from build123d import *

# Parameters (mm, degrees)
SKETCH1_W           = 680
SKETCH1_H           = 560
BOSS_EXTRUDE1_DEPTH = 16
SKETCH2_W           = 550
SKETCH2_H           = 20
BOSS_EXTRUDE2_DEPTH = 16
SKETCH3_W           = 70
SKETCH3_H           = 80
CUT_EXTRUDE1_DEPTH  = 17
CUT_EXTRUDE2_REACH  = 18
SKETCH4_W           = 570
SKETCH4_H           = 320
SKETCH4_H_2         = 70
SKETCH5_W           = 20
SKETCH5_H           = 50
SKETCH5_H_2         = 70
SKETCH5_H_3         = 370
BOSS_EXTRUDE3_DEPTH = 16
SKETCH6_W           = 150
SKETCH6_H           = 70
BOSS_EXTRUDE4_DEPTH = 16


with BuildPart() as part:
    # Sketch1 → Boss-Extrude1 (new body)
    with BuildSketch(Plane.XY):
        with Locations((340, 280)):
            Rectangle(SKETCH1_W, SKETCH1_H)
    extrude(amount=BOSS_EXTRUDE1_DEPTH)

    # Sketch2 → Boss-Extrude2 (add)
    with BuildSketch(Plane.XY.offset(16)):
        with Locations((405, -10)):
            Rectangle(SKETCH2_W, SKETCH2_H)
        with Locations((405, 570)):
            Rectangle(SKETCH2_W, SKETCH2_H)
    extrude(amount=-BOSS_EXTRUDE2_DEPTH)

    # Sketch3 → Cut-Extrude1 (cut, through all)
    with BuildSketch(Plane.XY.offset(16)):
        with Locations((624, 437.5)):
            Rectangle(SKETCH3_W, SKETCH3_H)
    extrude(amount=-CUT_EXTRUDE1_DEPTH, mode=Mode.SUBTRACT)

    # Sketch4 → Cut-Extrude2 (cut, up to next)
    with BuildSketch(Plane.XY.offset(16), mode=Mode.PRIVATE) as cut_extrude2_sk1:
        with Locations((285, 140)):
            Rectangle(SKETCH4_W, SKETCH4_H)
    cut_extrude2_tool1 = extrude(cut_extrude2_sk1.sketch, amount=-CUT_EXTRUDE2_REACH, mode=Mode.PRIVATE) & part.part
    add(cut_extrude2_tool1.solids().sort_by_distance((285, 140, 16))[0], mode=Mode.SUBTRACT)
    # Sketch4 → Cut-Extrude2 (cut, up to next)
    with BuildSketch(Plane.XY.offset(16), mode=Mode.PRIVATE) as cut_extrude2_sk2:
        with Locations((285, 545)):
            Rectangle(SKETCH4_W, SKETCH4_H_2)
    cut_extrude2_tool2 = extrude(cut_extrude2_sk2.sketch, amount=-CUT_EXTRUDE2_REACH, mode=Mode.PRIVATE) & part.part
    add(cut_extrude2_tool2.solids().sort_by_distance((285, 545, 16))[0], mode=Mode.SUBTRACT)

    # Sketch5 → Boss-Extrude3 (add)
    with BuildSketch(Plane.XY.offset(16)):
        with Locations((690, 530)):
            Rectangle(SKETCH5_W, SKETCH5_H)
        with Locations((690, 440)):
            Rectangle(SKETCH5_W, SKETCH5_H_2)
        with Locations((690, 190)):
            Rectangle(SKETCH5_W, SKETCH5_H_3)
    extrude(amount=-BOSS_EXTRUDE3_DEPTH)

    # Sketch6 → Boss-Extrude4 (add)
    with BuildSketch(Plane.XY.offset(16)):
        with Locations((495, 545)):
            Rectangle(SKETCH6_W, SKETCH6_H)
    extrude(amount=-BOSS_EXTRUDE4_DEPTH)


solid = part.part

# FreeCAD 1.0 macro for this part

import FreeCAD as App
import Part
import Sketcher

V = App.Vector
Q = App.Units.Quantity


def add_polygon(sketch, points):
    """Adds a closed chain of lines whose ends are joined by coincident constraints."""
    first, n = sketch.GeometryCount, len(points)
    for a, b in zip(points, points[1:] + points[:1]):
        sketch.addGeometry(Part.LineSegment(App.Vector(*a, 0), App.Vector(*b, 0)), False)
    for i in range(n):
        sketch.addConstraint(Sketcher.Constraint("Coincident", first + i, 2, first + (i + 1) % n, 1))

doc = App.newDocument("Part")
body = doc.addObject("PartDesign::Body", "Body")

# Sketch on XY plane
sketch1 = doc.addObject("Sketcher::SketchObject", "Sketch")
body.addObject(sketch1)
sketch1.AttachmentSupport = (doc.XY_Plane, [""])
sketch1.MapMode = "FlatFace"
add_polygon(sketch1, [(0, 560), (0, 0), (680, 0), (680, 560)])  # lines 0-3
sketch1.addConstraint([
    Sketcher.Constraint("Vertical", 0),
    Sketcher.Constraint("Horizontal", 1),
    Sketcher.Constraint("Vertical", 2),
    Sketcher.Constraint("Horizontal", 3),
    Sketcher.Constraint("Coincident", 0, 2, -1, 1),
    Sketcher.Constraint("DistanceX", 1, 1, 1, 2, Q("680 mm")),
    Sketcher.Constraint("DistanceY", 0, 2, 0, 1, Q("560 mm")),
])
pad1 = doc.addObject("PartDesign::Pad", "Pad")
body.addObject(pad1)
pad1.Profile = sketch1
pad1.Length = 16

# Sketch on XY plane
sketch2 = doc.addObject("Sketcher::SketchObject", "Sketch001")
body.addObject(sketch2)
sketch2.AttachmentSupport = (doc.XY_Plane, [""])
sketch2.MapMode = "FlatFace"
sketch2.AttachmentOffset = App.Placement(V(0, 0, 16), App.Rotation())
add_polygon(sketch2, [(130, 0), (130, -20), (680, -20), (680, 0)])  # lines 0-3
add_polygon(sketch2, [(130, 580), (130, 560), (680, 560), (680, 580)])  # lines 4-7
sketch2.addConstraint([
    Sketcher.Constraint("Vertical", 0),
    Sketcher.Constraint("Horizontal", 1),
    Sketcher.Constraint("Vertical", 2),
    Sketcher.Constraint("Horizontal", 3),
    Sketcher.Constraint("Vertical", 4),
    Sketcher.Constraint("Horizontal", 5),
    Sketcher.Constraint("Vertical", 6),
    Sketcher.Constraint("Horizontal", 7),
    Sketcher.Constraint("PointOnObject", 2, 2, -1),
    Sketcher.Constraint("Vertical", 3, 2, 4, 2),
    Sketcher.Constraint("Vertical", 2, 2, 5, 2),
    Sketcher.Constraint("Equal", 2, 4),
    Sketcher.Constraint("DistanceX", 1, 1, 1, 2, Q("550 mm")),
    Sketcher.Constraint("DistanceY", 0, 2, 0, 1, Q("20 mm")),
    Sketcher.Constraint("DistanceX", -1, 1, 0, 2, Q("130 mm")),
    Sketcher.Constraint("DistanceY", -1, 1, 4, 2, Q("560 mm")),
])
pad2 = doc.addObject("PartDesign::Pad", "Pad001")
body.addObject(pad2)
pad2.Profile = sketch2
pad2.Length = 16
pad2.Reversed = True

# Sketch on XY plane
sketch3 = doc.addObject("Sketcher::SketchObject", "Sketch002")
body.addObject(sketch3)
sketch3.AttachmentSupport = (doc.XY_Plane, [""])
sketch3.MapMode = "FlatFace"
sketch3.AttachmentOffset = App.Placement(V(0, 0, 16), App.Rotation())
add_polygon(sketch3, [(589, 477.5), (589, 397.5), (659, 397.5), (659, 477.5)])  # lines 0-3
sketch3.addConstraint([
    Sketcher.Constraint("Vertical", 0),
    Sketcher.Constraint("Horizontal", 1),
    Sketcher.Constraint("Vertical", 2),
    Sketcher.Constraint("Horizontal", 3),
    Sketcher.Constraint("DistanceX", 1, 1, 1, 2, Q("70 mm")),
    Sketcher.Constraint("DistanceY", 0, 2, 0, 1, Q("80 mm")),
    Sketcher.Constraint("DistanceX", -1, 1, 0, 2, Q("589 mm")),
    Sketcher.Constraint("DistanceY", -1, 1, 0, 2, Q("397.5 mm")),
])
pocket1 = doc.addObject("PartDesign::Pocket", "Pocket")
body.addObject(pocket1)
pocket1.Profile = sketch3
pocket1.Type = "ThroughAll"

# Sketch on XY plane
sketch4 = doc.addObject("Sketcher::SketchObject", "Sketch003")
body.addObject(sketch4)
sketch4.AttachmentSupport = (doc.XY_Plane, [""])
sketch4.MapMode = "FlatFace"
sketch4.AttachmentOffset = App.Placement(V(0, 0, 16), App.Rotation())
add_polygon(sketch4, [(0, 300), (0, -20), (570, -20), (570, 300)])  # lines 0-3
sketch4.addConstraint([
    Sketcher.Constraint("Vertical", 0),
    Sketcher.Constraint("Horizontal", 1),
    Sketcher.Constraint("Vertical", 2),
    Sketcher.Constraint("Horizontal", 3),
    Sketcher.Constraint("PointOnObject", 0, 2, -2),
    Sketcher.Constraint("DistanceX", 1, 1, 1, 2, Q("570 mm")),
    Sketcher.Constraint("DistanceY", 0, 2, 0, 1, Q("320 mm")),
    Sketcher.Constraint("DistanceY", 0, 2, -1, 1, Q("20 mm")),
])
pocket2 = doc.addObject("PartDesign::Pocket", "Pocket001")
body.addObject(pocket2)
pocket2.Profile = sketch4
pocket2.Type = "UpToFirst"

# Sketch on XY plane
sketch5 = doc.addObject("Sketcher::SketchObject", "Sketch004")
body.addObject(sketch5)
sketch5.AttachmentSupport = (doc.XY_Plane, [""])
sketch5.MapMode = "FlatFace"
sketch5.AttachmentOffset = App.Placement(V(0, 0, 16), App.Rotation())
add_polygon(sketch5, [(0, 580), (0, 510), (570, 510), (570, 580)])  # lines 0-3
sketch5.addConstraint([
    Sketcher.Constraint("Vertical", 0),
    Sketcher.Constraint("Horizontal", 1),
    Sketcher.Constraint("Vertical", 2),
    Sketcher.Constraint("Horizontal", 3),
    Sketcher.Constraint("PointOnObject", 0, 2, -2),
    Sketcher.Constraint("DistanceX", 1, 1, 1, 2, Q("570 mm")),
    Sketcher.Constraint("DistanceY", 0, 2, 0, 1, Q("70 mm")),
    Sketcher.Constraint("DistanceY", -1, 1, 0, 2, Q("510 mm")),
])
pocket3 = doc.addObject("PartDesign::Pocket", "Pocket002")
body.addObject(pocket3)
pocket3.Profile = sketch5
pocket3.Type = "UpToFirst"

# Sketch on XY plane
sketch6 = doc.addObject("Sketcher::SketchObject", "Sketch005")
body.addObject(sketch6)
sketch6.AttachmentSupport = (doc.XY_Plane, [""])
sketch6.MapMode = "FlatFace"
sketch6.AttachmentOffset = App.Placement(V(0, 0, 16), App.Rotation())
add_polygon(sketch6, [(680, 555), (680, 505), (700, 505), (700, 555)])  # lines 0-3
add_polygon(sketch6, [(680, 475), (680, 405), (700, 405), (700, 475)])  # lines 4-7
add_polygon(sketch6, [(680, 375), (680, 5), (700, 5), (700, 375)])  # lines 8-11
sketch6.addConstraint([
    Sketcher.Constraint("Vertical", 0),
    Sketcher.Constraint("Horizontal", 1),
    Sketcher.Constraint("Vertical", 2),
    Sketcher.Constraint("Horizontal", 3),
    Sketcher.Constraint("Vertical", 4),
    Sketcher.Constraint("Horizontal", 5),
    Sketcher.Constraint("Vertical", 6),
    Sketcher.Constraint("Horizontal", 7),
    Sketcher.Constraint("Vertical", 8),
    Sketcher.Constraint("Horizontal", 9),
    Sketcher.Constraint("Vertical", 10),
    Sketcher.Constraint("Horizontal", 11),
    Sketcher.Constraint("Vertical", 3, 2, 4, 2),
    Sketcher.Constraint("Vertical", 2, 2, 5, 2),
    Sketcher.Constraint("Vertical", 7, 2, 8, 2),
    Sketcher.Constraint("Vertical", 6, 2, 9, 2),
    Sketcher.Constraint("DistanceX", 1, 1, 1, 2, Q("20 mm")),
    Sketcher.Constraint("DistanceY", 0, 2, 0, 1, Q("50 mm")),
    Sketcher.Constraint("DistanceY", 4, 2, 4, 1, Q("70 mm")),
    Sketcher.Constraint("DistanceY", 8, 2, 8, 1, Q("370 mm")),
    Sketcher.Constraint("DistanceX", -1, 1, 0, 2, Q("680 mm")),
    Sketcher.Constraint("DistanceY", -1, 1, 0, 2, Q("505 mm")),
    Sketcher.Constraint("DistanceY", -1, 1, 4, 2, Q("405 mm")),
    Sketcher.Constraint("DistanceY", -1, 1, 8, 2, Q("5 mm")),
])
pad3 = doc.addObject("PartDesign::Pad", "Pad002")
body.addObject(pad3)
pad3.Profile = sketch6
pad3.Length = 16
pad3.Reversed = True

# Sketch on XY plane
sketch7 = doc.addObject("Sketcher::SketchObject", "Sketch006")
body.addObject(sketch7)
sketch7.AttachmentSupport = (doc.XY_Plane, [""])
sketch7.MapMode = "FlatFace"
sketch7.AttachmentOffset = App.Placement(V(0, 0, 16), App.Rotation())
add_polygon(sketch7, [(420, 580), (420, 510), (570, 510), (570, 580)])  # lines 0-3
sketch7.addConstraint([
    Sketcher.Constraint("Vertical", 0),
    Sketcher.Constraint("Horizontal", 1),
    Sketcher.Constraint("Vertical", 2),
    Sketcher.Constraint("Horizontal", 3),
    Sketcher.Constraint("DistanceX", 1, 1, 1, 2, Q("150 mm")),
    Sketcher.Constraint("DistanceY", 0, 2, 0, 1, Q("70 mm")),
    Sketcher.Constraint("DistanceX", -1, 1, 0, 2, Q("420 mm")),
    Sketcher.Constraint("DistanceY", -1, 1, 0, 2, Q("510 mm")),
])
pad4 = doc.addObject("PartDesign::Pad", "Pad003")
body.addObject(pad4)
pad4.Profile = sketch7
pad4.Length = 16
pad4.Reversed = True

doc.recompute()
